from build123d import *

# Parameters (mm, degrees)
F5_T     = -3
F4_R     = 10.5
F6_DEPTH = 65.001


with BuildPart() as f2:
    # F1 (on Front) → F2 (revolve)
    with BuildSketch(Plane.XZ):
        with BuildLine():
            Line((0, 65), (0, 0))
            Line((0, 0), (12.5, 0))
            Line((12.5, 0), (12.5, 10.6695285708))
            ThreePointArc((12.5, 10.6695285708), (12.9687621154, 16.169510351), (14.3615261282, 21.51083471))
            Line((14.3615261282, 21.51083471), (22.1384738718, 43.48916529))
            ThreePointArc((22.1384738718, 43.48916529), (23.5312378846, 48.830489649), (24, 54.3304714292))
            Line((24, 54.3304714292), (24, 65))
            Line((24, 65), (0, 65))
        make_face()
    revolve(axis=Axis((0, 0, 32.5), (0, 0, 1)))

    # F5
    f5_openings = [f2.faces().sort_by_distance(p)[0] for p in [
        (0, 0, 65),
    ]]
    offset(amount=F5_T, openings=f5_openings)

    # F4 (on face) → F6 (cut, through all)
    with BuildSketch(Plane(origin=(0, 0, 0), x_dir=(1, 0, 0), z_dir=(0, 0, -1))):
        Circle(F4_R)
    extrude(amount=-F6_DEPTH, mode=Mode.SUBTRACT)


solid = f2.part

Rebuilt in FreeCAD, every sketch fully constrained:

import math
import FreeCAD as App
import Part
import Sketcher

V = App.Vector
Q = App.Units.Quantity


def faces_at(feature, points):
    """Names of the faces that lie closest to the given points."""
    faces = feature.Shape.Faces
    near = lambda p: min(range(len(faces)), key=lambda i: faces[i].distToShape(Part.Vertex(*p))[0])
    return sorted({f"Face{near(p) + 1}" for p in points})

doc = App.newDocument("Part")
body = doc.addObject("PartDesign::Body", "Body")

# Sketch on XZ plane
sketch1 = doc.addObject("Sketcher::SketchObject", "Sketch")
body.addObject(sketch1)
sketch1.AttachmentSupport = (doc.XZ_Plane, [""])
sketch1.MapMode = "FlatFace"
sketch1.addGeometry(Part.LineSegment(V(0, 65, 0), V(0, 0, 0)), False)
sketch1.addGeometry(Part.LineSegment(V(0, 0, 0), V(12, 0, 0)), False)
sketch1.addGeometry(Part.LineSegment(V(12, 0, 0), V(12, 11, 0)), False)
sketch1.addGeometry(Part.ArcOfCircle(Part.Circle(V(45, 11, 0), V(0, 0, 1), 32), math.radians(160.51), math.radians(180)), False)
sketch1.addGeometry(Part.LineSegment(V(14, 22, 0), V(22, 43, 0)), False)
sketch1.addGeometry(Part.ArcOfCircle(Part.Circle(V(-8, 54, 0), V(0, 0, 1), 32), math.radians(-19.49), math.radians(0)), False)
sketch1.addGeometry(Part.LineSegment(V(24, 54, 0), V(24, 65, 0)), False)
sketch1.addGeometry(Part.LineSegment(V(24, 65, 0), V(0, 65, 0)), False)
sketch1.addConstraint(Sketcher.Constraint("Coincident", 0, 2, 1, 1))
sketch1.addConstraint(Sketcher.Constraint("Coincident", 1, 2, 2, 1))
sketch1.addConstraint(Sketcher.Constraint("Tangent", 2, 2, 3, 2))
sketch1.addConstraint(Sketcher.Constraint("Tangent", 3, 1, 4, 1))
sketch1.addConstraint(Sketcher.Constraint("Tangent", 4, 2, 5, 1))
sketch1.addConstraint(Sketcher.Constraint("Tangent", 5, 2, 6, 1))
sketch1.addConstraint(Sketcher.Constraint("Coincident", 6, 2, 7, 1))
sketch1.addConstraint(Sketcher.Constraint("Coincident", 7, 2, 0, 1))
sketch1.addConstraint(Sketcher.Constraint("Vertical", 0))
sketch1.addConstraint(Sketcher.Constraint("Horizontal", 1))
sketch1.addConstraint(Sketcher.Constraint("Vertical", 2))
sketch1.addConstraint(Sketcher.Constraint("Vertical", 6))
sketch1.addConstraint(Sketcher.Constraint("Horizontal", 7))
sketch1.addConstraint(Sketcher.Constraint("Coincident", 0, 2, -1, 1))
sketch1.addConstraint(Sketcher.Constraint("Equal", 3, 5))
sketch1.addConstraint(Sketcher.Constraint("Equal", 2, 6))
sketch1.addConstraint(Sketcher.Constraint("Radius", 3, Q("32.5 mm")))
sketch1.addConstraint(Sketcher.Constraint("DistanceX", 7, 2, 7, 1, Q("24 mm")))
sketch1.addConstraint(Sketcher.Constraint("DistanceY", 0, 2, 0, 1, Q("65 mm")))
sketch1.addConstraint(Sketcher.Constraint("DistanceX", 1, 1, 1, 2, Q("12.5 mm")))
sketch1.addConstraint(Sketcher.Constraint("DistanceY", 2, 1, 2, 2, Q("10.669529 mm")))
revolution = doc.addObject("PartDesign::Revolution", "Revolution")
body.addObject(revolution)
revolution.Profile = sketch1
revolution.ReferenceAxis = (sketch1, ["V_Axis"])
revolution.Angle = 360
doc.recompute()

thickness = doc.addObject("PartDesign::Thickness", "Thickness")
body.addObject(thickness)
thickness.Base = (revolution, faces_at(revolution, [(0, 0, 65)]))
thickness.Value = 3
thickness.Reversed = True
thickness.Join = "Arc"

# Sketch on XY plane
sketch2 = doc.addObject("Sketcher::SketchObject", "Sketch001")
body.addObject(sketch2)
sketch2.AttachmentSupport = (doc.XY_Plane, [""])
sketch2.MapMode = "FlatFace"
sketch2.addGeometry(Part.Circle(V(0, 0, 0), V(0, 0, 1), 10), False)
sketch2.addConstraint(Sketcher.Constraint("Coincident", 0, 3, -1, 1))
sketch2.addConstraint(Sketcher.Constraint("Diameter", 0, Q("21 mm")))
pocket1 = doc.addObject("PartDesign::Pocket", "Pocket")
body.addObject(pocket1)
pocket1.Profile = sketch2
pocket1.Type = "ThroughAll"
pocket1.Reversed = True

doc.recompute()
